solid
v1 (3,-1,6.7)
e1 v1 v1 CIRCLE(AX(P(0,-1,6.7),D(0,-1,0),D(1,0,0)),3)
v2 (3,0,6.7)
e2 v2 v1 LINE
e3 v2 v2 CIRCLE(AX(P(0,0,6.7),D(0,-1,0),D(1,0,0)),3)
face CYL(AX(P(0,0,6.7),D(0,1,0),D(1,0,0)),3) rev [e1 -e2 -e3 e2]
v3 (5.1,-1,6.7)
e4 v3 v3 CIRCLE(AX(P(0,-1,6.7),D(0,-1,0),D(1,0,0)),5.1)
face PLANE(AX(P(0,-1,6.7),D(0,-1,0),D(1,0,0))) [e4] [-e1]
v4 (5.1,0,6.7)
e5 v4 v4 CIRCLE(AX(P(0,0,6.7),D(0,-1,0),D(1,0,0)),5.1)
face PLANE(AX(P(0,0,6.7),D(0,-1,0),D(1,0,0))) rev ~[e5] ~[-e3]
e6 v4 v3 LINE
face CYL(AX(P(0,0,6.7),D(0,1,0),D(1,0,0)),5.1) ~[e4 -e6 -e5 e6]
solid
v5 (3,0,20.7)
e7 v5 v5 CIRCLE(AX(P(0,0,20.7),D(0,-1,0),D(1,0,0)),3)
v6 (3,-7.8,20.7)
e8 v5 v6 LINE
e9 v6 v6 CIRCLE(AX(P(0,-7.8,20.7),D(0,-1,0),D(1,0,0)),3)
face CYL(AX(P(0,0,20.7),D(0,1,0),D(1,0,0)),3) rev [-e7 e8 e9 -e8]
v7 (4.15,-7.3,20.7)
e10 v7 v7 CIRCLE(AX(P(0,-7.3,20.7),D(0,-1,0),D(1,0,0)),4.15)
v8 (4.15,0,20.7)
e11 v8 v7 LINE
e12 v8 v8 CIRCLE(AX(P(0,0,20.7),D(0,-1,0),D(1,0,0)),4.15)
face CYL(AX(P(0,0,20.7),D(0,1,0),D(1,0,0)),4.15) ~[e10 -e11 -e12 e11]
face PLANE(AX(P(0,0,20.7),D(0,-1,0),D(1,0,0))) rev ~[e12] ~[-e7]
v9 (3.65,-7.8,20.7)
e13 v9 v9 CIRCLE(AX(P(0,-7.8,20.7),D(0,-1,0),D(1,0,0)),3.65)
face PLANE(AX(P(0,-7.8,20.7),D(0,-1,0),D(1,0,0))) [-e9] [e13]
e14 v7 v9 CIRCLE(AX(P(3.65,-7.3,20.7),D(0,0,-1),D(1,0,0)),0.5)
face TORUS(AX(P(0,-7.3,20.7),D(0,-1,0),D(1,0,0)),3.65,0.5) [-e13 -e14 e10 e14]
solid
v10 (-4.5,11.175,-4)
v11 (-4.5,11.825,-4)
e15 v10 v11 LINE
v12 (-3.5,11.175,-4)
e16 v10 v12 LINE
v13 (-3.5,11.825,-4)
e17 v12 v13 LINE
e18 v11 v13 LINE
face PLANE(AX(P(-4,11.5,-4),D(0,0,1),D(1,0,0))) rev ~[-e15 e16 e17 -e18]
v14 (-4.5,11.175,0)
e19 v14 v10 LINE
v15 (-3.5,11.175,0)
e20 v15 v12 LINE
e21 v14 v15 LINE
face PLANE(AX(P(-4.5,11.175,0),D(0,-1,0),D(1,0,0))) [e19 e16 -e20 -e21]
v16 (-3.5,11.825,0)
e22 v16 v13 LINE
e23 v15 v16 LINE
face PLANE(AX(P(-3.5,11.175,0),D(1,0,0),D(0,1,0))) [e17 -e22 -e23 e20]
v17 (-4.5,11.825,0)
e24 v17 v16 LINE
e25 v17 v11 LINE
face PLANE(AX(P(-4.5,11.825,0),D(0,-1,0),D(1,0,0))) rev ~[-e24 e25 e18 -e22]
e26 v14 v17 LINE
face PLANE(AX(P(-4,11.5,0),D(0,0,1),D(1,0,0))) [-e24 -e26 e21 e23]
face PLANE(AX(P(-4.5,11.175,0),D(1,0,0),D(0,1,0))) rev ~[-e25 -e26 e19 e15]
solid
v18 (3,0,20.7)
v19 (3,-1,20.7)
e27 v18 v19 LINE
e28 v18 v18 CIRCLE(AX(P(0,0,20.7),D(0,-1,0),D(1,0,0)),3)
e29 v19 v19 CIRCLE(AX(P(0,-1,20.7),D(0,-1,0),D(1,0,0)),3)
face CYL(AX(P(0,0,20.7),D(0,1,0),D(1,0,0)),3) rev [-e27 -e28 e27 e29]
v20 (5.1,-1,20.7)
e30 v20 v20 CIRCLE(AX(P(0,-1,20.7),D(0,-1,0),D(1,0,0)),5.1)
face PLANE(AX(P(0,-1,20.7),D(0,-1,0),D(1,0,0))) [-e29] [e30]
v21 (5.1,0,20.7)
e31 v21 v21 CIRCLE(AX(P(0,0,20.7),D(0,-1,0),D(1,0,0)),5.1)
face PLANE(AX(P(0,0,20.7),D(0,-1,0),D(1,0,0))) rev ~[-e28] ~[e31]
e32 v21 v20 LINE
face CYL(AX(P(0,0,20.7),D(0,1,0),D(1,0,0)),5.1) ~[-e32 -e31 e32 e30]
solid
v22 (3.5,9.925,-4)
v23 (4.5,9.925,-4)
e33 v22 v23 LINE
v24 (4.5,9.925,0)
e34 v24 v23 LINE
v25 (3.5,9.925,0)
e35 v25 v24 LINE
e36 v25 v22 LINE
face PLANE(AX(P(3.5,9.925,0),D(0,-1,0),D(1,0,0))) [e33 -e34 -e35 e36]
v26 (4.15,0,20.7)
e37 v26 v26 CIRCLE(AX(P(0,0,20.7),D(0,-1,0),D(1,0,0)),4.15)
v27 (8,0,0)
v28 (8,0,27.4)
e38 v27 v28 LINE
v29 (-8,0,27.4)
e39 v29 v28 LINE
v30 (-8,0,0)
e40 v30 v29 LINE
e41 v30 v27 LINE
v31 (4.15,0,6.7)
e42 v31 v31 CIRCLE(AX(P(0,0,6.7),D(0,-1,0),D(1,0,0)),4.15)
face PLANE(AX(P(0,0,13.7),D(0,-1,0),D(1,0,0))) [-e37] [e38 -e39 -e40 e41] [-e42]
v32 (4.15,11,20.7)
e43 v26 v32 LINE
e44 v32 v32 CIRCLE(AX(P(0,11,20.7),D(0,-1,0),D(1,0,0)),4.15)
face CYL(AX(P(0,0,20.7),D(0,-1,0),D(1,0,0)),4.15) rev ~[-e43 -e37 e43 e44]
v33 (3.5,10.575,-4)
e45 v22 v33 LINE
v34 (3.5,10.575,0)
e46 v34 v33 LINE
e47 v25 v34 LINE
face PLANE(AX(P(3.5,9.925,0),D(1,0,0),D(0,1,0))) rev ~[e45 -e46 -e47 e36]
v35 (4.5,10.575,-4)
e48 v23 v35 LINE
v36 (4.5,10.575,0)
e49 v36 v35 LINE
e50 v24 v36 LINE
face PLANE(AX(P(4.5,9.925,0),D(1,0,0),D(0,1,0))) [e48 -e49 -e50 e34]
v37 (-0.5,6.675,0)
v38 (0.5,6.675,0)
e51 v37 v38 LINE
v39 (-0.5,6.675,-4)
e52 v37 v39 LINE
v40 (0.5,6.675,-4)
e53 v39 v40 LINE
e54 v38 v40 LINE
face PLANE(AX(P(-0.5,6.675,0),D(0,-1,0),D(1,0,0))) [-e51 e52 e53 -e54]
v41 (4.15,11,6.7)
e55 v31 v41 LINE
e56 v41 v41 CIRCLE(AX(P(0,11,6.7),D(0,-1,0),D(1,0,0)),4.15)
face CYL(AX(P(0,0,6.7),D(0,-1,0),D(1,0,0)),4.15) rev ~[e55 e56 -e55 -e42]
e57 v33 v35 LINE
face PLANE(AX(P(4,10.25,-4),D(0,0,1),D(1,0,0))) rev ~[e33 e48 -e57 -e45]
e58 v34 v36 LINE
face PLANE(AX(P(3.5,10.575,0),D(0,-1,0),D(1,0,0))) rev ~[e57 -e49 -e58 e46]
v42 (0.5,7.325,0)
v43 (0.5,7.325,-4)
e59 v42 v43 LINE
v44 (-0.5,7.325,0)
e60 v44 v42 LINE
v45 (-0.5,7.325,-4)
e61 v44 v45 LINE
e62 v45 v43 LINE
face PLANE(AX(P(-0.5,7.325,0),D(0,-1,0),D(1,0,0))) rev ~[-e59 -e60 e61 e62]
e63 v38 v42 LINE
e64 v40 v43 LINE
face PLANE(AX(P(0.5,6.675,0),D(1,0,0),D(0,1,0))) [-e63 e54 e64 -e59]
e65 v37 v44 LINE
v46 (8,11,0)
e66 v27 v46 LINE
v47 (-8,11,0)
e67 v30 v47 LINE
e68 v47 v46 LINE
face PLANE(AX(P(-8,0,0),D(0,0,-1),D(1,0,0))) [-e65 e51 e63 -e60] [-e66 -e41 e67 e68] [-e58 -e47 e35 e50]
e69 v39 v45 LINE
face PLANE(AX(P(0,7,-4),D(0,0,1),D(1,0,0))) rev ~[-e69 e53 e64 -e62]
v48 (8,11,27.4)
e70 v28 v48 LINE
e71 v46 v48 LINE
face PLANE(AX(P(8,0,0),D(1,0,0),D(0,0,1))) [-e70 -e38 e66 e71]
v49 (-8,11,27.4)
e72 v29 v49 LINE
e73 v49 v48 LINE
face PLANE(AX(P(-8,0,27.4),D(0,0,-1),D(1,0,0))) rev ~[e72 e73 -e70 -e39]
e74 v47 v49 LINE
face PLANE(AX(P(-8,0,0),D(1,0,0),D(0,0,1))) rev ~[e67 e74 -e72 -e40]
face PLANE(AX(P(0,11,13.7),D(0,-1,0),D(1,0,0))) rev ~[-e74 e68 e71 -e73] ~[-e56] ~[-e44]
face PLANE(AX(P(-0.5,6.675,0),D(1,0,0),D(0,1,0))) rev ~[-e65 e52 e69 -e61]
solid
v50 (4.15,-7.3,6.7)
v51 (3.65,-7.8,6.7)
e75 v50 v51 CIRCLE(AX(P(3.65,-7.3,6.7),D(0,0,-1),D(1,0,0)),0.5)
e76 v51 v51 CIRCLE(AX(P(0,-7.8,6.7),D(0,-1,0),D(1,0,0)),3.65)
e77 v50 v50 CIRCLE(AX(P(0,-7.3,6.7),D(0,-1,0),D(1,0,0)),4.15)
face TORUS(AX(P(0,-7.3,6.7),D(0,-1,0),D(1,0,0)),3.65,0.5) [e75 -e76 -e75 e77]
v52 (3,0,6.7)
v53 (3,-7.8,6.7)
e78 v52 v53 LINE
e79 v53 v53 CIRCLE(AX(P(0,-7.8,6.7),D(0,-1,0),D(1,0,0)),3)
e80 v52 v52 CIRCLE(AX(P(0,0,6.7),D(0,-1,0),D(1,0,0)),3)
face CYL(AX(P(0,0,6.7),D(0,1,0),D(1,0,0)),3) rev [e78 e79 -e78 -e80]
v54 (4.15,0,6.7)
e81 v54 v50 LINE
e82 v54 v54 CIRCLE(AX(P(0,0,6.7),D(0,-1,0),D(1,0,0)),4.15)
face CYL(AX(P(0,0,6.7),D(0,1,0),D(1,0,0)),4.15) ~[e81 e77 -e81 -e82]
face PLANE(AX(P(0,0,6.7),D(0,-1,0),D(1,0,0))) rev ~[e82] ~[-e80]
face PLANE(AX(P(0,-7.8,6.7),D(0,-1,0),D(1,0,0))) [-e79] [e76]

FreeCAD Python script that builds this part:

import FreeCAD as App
import Part
import Sketcher
from FreeCAD import Vector
Q = App.Units.Quantity


def edges_at(feature, points):
    """Names of the edges that pass closest to the given points."""
    edges = feature.Shape.Edges
    near = lambda p: min(range(len(edges)), key=lambda i: edges[i].distToShape(Part.Vertex(*p))[0])
    return sorted({f"Edge{near(p) + 1}" for p in points})

doc = App.newDocument("Part")
body = doc.addObject("PartDesign::Body", "Body")
body.AllowCompound = True

# Sketch on XZ plane
sketch1 = body.newObject("Sketcher::SketchObject", "Sketch")
sketch1.AttachmentSupport = (doc.getObject("XZ_Plane"), [""])
sketch1.MapMode = "FlatFace"
sketch1.addGeometry([
    Part.Circle(Vector(0, 20.7, 0), Vector(0, 0, 1), 4.2),
    Part.Circle(Vector(0, 20.7, 0), Vector(0, 0, 1), 3),
    Part.Circle(Vector(0, 6.7, 0), Vector(0, 0, 1), 4.2),
    Part.Circle(Vector(0, 6.7, 0), Vector(0, 0, 1), 3),
], False)
sketch1.addConstraint([
    Sketcher.Constraint("Coincident", 1, 3, 0, 3),
    Sketcher.Constraint("Coincident", 3, 3, 2, 3),
    Sketcher.Constraint("Equal", 0, 2),
    Sketcher.Constraint("Equal", 1, 3),
    Sketcher.Constraint("PointOnObject", 0, 3, -2),
    Sketcher.Constraint("PointOnObject", 2, 3, -2),
    Sketcher.Constraint("Diameter", 1, Q("6 mm")),
    Sketcher.Constraint("Diameter", 0, Q("8.3 mm")),
    Sketcher.Constraint("DistanceY", 2, 3, 0, 3, Q("14 mm")),
    Sketcher.Constraint("DistanceY", -1, 1, 0, 3, Q("20.7 mm")),
])
pad1 = body.newObject("PartDesign::Pad", "Pad")
pad1.Profile = sketch1
pad1.Length = 7.8
doc.recompute()

fillet = body.newObject("PartDesign::Fillet", "Fillet")
fillet.Base = (pad1, edges_at(pad1, [(-4.15, -7.8, 20.7), (-4.15, -7.8, 6.7)]))
fillet.Radius = 0.5
body2 = doc.addObject("PartDesign::Body", "Body001")
body2.AllowCompound = True

# Sketch on XZ plane
sketch2 = body2.newObject("Sketcher::SketchObject", "Sketch001")
sketch2.AttachmentSupport = (doc.getObject("XZ_Plane001"), [""])
sketch2.MapMode = "FlatFace"
sketch2.addGeometry([
    Part.Circle(Vector(0, 20.7, 0), Vector(0, 0, 1), 5.1),
    Part.Circle(Vector(0, 20.7, 0), Vector(0, 0, 1), 3),
    Part.Circle(Vector(0, 6.7, 0), Vector(0, 0, 1), 5.1),
    Part.Circle(Vector(0, 6.7, 0), Vector(0, 0, 1), 3),
], False)
sketch2.addConstraint([
    Sketcher.Constraint("Coincident", 1, 3, 0, 3),
    Sketcher.Constraint("Coincident", 3, 3, 2, 3),
    Sketcher.Constraint("Equal", 0, 2),
    Sketcher.Constraint("Equal", 1, 3),
    Sketcher.Constraint("PointOnObject", 0, 3, -2),
    Sketcher.Constraint("PointOnObject", 2, 3, -2),
    Sketcher.Constraint("Diameter", 1, Q("6 mm")),
    Sketcher.Constraint("Diameter", 0, Q("10.2 mm")),
    Sketcher.Constraint("DistanceY", 2, 3, 0, 3, Q("14 mm")),
    Sketcher.Constraint("DistanceY", -1, 1, 0, 3, Q("20.7 mm")),
])
pad2 = body2.newObject("PartDesign::Pad", "Pad001")
pad2.Profile = sketch2
pad2.Length = 1
body3 = doc.addObject("PartDesign::Body", "Body002")
body3.AllowCompound = True

# Sketch on XZ plane
sketch3 = body3.newObject("Sketcher::SketchObject", "Sketch002")
sketch3.AttachmentSupport = (doc.getObject("XZ_Plane002"), [""])
sketch3.MapMode = "FlatFace"
sketch3.addGeometry([
    Part.LineSegment(Vector(-8, 27.4, 0), Vector(-8, 0, 0)),  # 0
    Part.LineSegment(Vector(-8, 0, 0), Vector(8, 0, 0)),  # 1
    Part.LineSegment(Vector(8, 0, 0), Vector(8, 27.4, 0)),  # 2
    Part.LineSegment(Vector(8, 27.4, 0), Vector(-8, 27.4, 0)),  # 3
    Part.Circle(Vector(0, 6.7, 0), Vector(0, 0, 1), 4.2),  # 4
    Part.Circle(Vector(0, 20.7, 0), Vector(0, 0, 1), 4.2),  # 5
], False)
sketch3.addConstraint([
    Sketcher.Constraint("Coincident", 0, 2, 1, 1),
    Sketcher.Constraint("Coincident", 1, 2, 2, 1),
    Sketcher.Constraint("Coincident", 2, 2, 3, 1),
    Sketcher.Constraint("Coincident", 3, 2, 0, 1),
    Sketcher.Constraint("Vertical", 0),
    Sketcher.Constraint("Horizontal", 1),
    Sketcher.Constraint("Vertical", 2),
    Sketcher.Constraint("Horizontal", 3),
    Sketcher.Constraint("Equal", 4, 5),
    Sketcher.Constraint("Symmetric", 0, 2, 1, 2, -1, 1),
    Sketcher.Constraint("PointOnObject", 4, 3, -2),
    Sketcher.Constraint("PointOnObject", 5, 3, -2),
    Sketcher.Constraint("Diameter", 4, Q("8.3 mm")),
    Sketcher.Constraint("DistanceX", 1, 1, 1, 2, Q("16 mm")),
    Sketcher.Constraint("DistanceY", 0, 2, 0, 1, Q("27.4 mm")),
    Sketcher.Constraint("DistanceY", 4, 3, 5, 3, Q("14 mm")),
    Sketcher.Constraint("DistanceY", -1, 1, 4, 3, Q("6.7 mm")),
])
pad3 = body3.newObject("PartDesign::Pad", "Pad002")
pad3.Profile = sketch3
pad3.Length = 11
pad3.Reversed = True

# Sketch on XY plane
sketch4 = body3.newObject("Sketcher::SketchObject", "Sketch003")
sketch4.AttachmentSupport = (doc.getObject("XY_Plane002"), [""])
sketch4.MapMode = "FlatFace"
sketch4.addGeometry([
    Part.LineSegment(Vector(-0.5, 7.3, 0), Vector(-0.5, 6.7, 0)),  # 0
    Part.LineSegment(Vector(-0.5, 6.7, 0), Vector(0.5, 6.7, 0)),  # 1
    Part.LineSegment(Vector(0.5, 6.7, 0), Vector(0.5, 7.3, 0)),  # 2
    Part.LineSegment(Vector(0.5, 7.3, 0), Vector(-0.5, 7.3, 0)),  # 3
    Part.LineSegment(Vector(-4.5, 11.8, 0), Vector(-4.5, 11.2, 0)),  # 4
    Part.LineSegment(Vector(-4.5, 11.2, 0), Vector(-3.5, 11.2, 0)),  # 5
    Part.LineSegment(Vector(-3.5, 11.2, 0), Vector(-3.5, 11.8, 0)),  # 6
    Part.LineSegment(Vector(-3.5, 11.8, 0), Vector(-4.5, 11.8, 0)),  # 7
    Part.LineSegment(Vector(3.5, 10.6, 0), Vector(3.5, 9.9, 0)),  # 8
    Part.LineSegment(Vector(3.5, 9.9, 0), Vector(4.5, 9.9, 0)),  # 9
    Part.LineSegment(Vector(4.5, 9.9, 0), Vector(4.5, 10.6, 0)),  # 10
    Part.LineSegment(Vector(4.5, 10.6, 0), Vector(3.5, 10.6, 0)),  # 11
], False)
sketch4.addConstraint([
    Sketcher.Constraint("Coincident", 0, 2, 1, 1),
    Sketcher.Constraint("Coincident", 1, 2, 2, 1),
    Sketcher.Constraint("Coincident", 2, 2, 3, 1),
    Sketcher.Constraint("Coincident", 3, 2, 0, 1),
    Sketcher.Constraint("Coincident", 4, 2, 5, 1),
    Sketcher.Constraint("Coincident", 5, 2, 6, 1),
    Sketcher.Constraint("Coincident", 6, 2, 7, 1),
    Sketcher.Constraint("Coincident", 7, 2, 4, 1),
    Sketcher.Constraint("Coincident", 8, 2, 9, 1),
    Sketcher.Constraint("Coincident", 9, 2, 10, 1),
    Sketcher.Constraint("Coincident", 10, 2, 11, 1),
    Sketcher.Constraint("Coincident", 11, 2, 8, 1),
    Sketcher.Constraint("Vertical", 0),
    Sketcher.Constraint("Horizontal", 1),
    Sketcher.Constraint("Vertical", 2),
    Sketcher.Constraint("Horizontal", 3),
    Sketcher.Constraint("Vertical", 4),
    Sketcher.Constraint("Horizontal", 5),
    Sketcher.Constraint("Vertical", 6),
    Sketcher.Constraint("Horizontal", 7),
    Sketcher.Constraint("Vertical", 8),
    Sketcher.Constraint("Horizontal", 9),
    Sketcher.Constraint("Vertical", 10),
    Sketcher.Constraint("Horizontal", 11),
    Sketcher.Constraint("Equal", 3, 5),
    Sketcher.Constraint("Equal", 7, 9),
    Sketcher.Constraint("Equal", 2, 4),
    Sketcher.Constraint("Equal", 6, 8),
    Sketcher.Constraint("DistanceX", 1, 1, 1, 2, Q("1 mm")),
    Sketcher.Constraint("DistanceX", 4, 2, 3, 2, Q("4 mm")),
    Sketcher.Constraint("DistanceX", 2, 2, 8, 2, Q("3 mm")),
    Sketcher.Constraint("DistanceY", 0, 2, 0, 1, Q("0.65 mm")),
    Sketcher.Constraint("DistanceX", 0, 2, -1, 1, Q("0.5 mm")),
    Sketcher.Constraint("DistanceY", 0, 2, 4, 2, Q("4.5 mm")),
    Sketcher.Constraint("DistanceY", 2, 2, 8, 2, Q("2.6 mm")),
    Sketcher.Constraint("DistanceY", -1, 1, 0, 2, Q("6.675 mm")),
])
pad4 = body3.newObject("PartDesign::Pad", "Pad003")
pad4.Profile = sketch4
pad4.Length = 4
pad4.Reversed = True

doc.recompute()
